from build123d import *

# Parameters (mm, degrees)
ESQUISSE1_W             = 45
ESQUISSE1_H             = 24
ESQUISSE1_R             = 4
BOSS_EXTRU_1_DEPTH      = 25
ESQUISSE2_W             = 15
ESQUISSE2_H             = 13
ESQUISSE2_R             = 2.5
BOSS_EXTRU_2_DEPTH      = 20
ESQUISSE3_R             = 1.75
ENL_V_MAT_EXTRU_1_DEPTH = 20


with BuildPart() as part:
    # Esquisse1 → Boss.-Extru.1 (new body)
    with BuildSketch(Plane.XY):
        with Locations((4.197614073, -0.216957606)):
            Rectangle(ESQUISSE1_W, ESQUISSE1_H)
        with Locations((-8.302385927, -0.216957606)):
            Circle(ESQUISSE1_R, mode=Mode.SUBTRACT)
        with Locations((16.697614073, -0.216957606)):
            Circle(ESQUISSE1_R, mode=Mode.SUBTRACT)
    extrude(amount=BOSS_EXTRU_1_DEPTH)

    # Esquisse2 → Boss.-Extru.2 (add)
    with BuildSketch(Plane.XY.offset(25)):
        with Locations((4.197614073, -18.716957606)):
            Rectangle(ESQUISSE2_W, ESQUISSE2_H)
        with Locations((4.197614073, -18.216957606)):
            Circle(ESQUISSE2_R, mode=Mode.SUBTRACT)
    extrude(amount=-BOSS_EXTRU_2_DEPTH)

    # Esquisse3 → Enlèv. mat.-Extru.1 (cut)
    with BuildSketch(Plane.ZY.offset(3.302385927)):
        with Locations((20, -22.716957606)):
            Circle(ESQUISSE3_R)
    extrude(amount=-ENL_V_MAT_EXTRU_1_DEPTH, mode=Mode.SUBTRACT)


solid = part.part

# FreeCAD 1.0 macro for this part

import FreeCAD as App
import Part
import Sketcher
Q = App.Units.Quantity

doc = App.newDocument("Part")
body = doc.addObject("PartDesign::Body", "Body")

# Sketch on XY plane
sketch1 = doc.addObject("Sketcher::SketchObject", "Sketch")
body.addObject(sketch1)
sketch1.AttachmentSupport = (doc.XY_Plane, [""])
sketch1.MapMode = "FlatFace"
sketch1.addGeometry([
    Part.LineSegment(App.Vector(-18.3, 11.8, 0), App.Vector(-18.3, -12.2, 0)),  # 0
    Part.LineSegment(App.Vector(-18.3, -12.2, 0), App.Vector(26.7, -12.2, 0)),  # 1
    Part.LineSegment(App.Vector(26.7, -12.2, 0), App.Vector(26.7, 11.8, 0)),  # 2
    Part.LineSegment(App.Vector(26.7, 11.8, 0), App.Vector(-18.3, 11.8, 0)),  # 3
    Part.Circle(App.Vector(-8.3, -0.2, 0), App.Vector(0, 0, 1), 4),  # 4
    Part.Circle(App.Vector(16.7, -0.2, 0), App.Vector(0, 0, 1), 4),  # 5
], False)
sketch1.addConstraint([
    Sketcher.Constraint("Coincident", 0, 2, 1, 1),
    Sketcher.Constraint("Coincident", 1, 2, 2, 1),
    Sketcher.Constraint("Coincident", 2, 2, 3, 1),
    Sketcher.Constraint("Coincident", 3, 2, 0, 1),
    Sketcher.Constraint("Vertical", 0),
    Sketcher.Constraint("Horizontal", 1),
    Sketcher.Constraint("Vertical", 2),
    Sketcher.Constraint("Horizontal", 3),
    Sketcher.Constraint("Equal", 4, 5),
    Sketcher.Constraint("Horizontal", 4, 3, 5, 3),
    Sketcher.Constraint("Diameter", 4, Q("8 mm")),
    Sketcher.Constraint("DistanceX", 1, 1, 1, 2, Q("45 mm")),
    Sketcher.Constraint("DistanceY", 0, 2, 0, 1, Q("24 mm")),
    Sketcher.Constraint("DistanceX", 4, 3, 5, 3, Q("25 mm")),
    Sketcher.Constraint("DistanceX", 0, 2, 4, 3, Q("10 mm")),
    Sketcher.Constraint("DistanceY", 0, 2, 4, 3, Q("12 mm")),
    Sketcher.Constraint("DistanceX", 4, 3, -1, 1, Q("8.302386 mm")),
    Sketcher.Constraint("DistanceY", 4, 3, -1, 1, Q("0.216958 mm")),
])
pad1 = doc.addObject("PartDesign::Pad", "Pad")
body.addObject(pad1)
pad1.Profile = sketch1
pad1.Length = 25

# Sketch on XY plane
sketch2 = doc.addObject("Sketcher::SketchObject", "Sketch001")
body.addObject(sketch2)
sketch2.AttachmentSupport = (doc.XY_Plane, [""])
sketch2.MapMode = "FlatFace"
sketch2.AttachmentOffset = App.Placement(App.Vector(0, 0, 25), App.Rotation())
sketch2.addGeometry([
    Part.LineSegment(App.Vector(-3.3, -12.2, 0), App.Vector(-3.3, -25.2, 0)),  # 0
    Part.LineSegment(App.Vector(-3.3, -25.2, 0), App.Vector(11.7, -25.2, 0)),  # 1
    Part.LineSegment(App.Vector(11.7, -25.2, 0), App.Vector(11.7, -12.2, 0)),  # 2
    Part.LineSegment(App.Vector(11.7, -12.2, 0), App.Vector(-3.3, -12.2, 0)),  # 3
    Part.Circle(App.Vector(4.2, -18.2, 0), App.Vector(0, 0, 1), 2.5),  # 4
], False)
sketch2.addConstraint([
    Sketcher.Constraint("Coincident", 0, 2, 1, 1),
    Sketcher.Constraint("Coincident", 1, 2, 2, 1),
    Sketcher.Constraint("Coincident", 2, 2, 3, 1),
    Sketcher.Constraint("Coincident", 3, 2, 0, 1),
    Sketcher.Constraint("Vertical", 0),
    Sketcher.Constraint("Horizontal", 1),
    Sketcher.Constraint("Vertical", 2),
    Sketcher.Constraint("Horizontal", 3),
    Sketcher.Constraint("Diameter", 4, Q("5 mm")),
    Sketcher.Constraint("DistanceX", 1, 1, 1, 2, Q("15 mm")),
    Sketcher.Constraint("DistanceY", 0, 2, 0, 1, Q("13 mm")),
    Sketcher.Constraint("DistanceY", 0, 2, 4, 3, Q("7 mm")),
    Sketcher.Constraint("DistanceX", 0, 2, 4, 3, Q("7.5 mm")),
    Sketcher.Constraint("DistanceX", -1, 1, 4, 3, Q("4.197614 mm")),
    Sketcher.Constraint("DistanceY", 4, 3, -1, 1, Q("18.216958 mm")),
])
pad2 = doc.addObject("PartDesign::Pad", "Pad001")
body.addObject(pad2)
pad2.Profile = sketch2
pad2.Length = 20
pad2.Reversed = True

# Sketch on YZ plane
sketch3 = doc.addObject("Sketcher::SketchObject", "Sketch002")
body.addObject(sketch3)
sketch3.AttachmentSupport = (doc.YZ_Plane, [""])
sketch3.MapMode = "FlatFace"
sketch3.AttachmentOffset = App.Placement(App.Vector(0, 0, -3.302386), App.Rotation())
sketch3.addGeometry(Part.Circle(App.Vector(-22.7, 20, 0), App.Vector(0, 0, 1), 1.8), False)
sketch3.addConstraint([
    Sketcher.Constraint("Diameter", 0, Q("3.5 mm")),
    Sketcher.Constraint("DistanceY", -1, 1, 0, 3, Q("20 mm")),
    Sketcher.Constraint("DistanceX", 0, 3, -1, 1, Q("22.716958 mm")),
])
pocket1 = doc.addObject("PartDesign::Pocket", "Pocket")
body.addObject(pocket1)
pocket1.Profile = sketch3
pocket1.Length = 20
pocket1.Reversed = True

doc.recompute()
